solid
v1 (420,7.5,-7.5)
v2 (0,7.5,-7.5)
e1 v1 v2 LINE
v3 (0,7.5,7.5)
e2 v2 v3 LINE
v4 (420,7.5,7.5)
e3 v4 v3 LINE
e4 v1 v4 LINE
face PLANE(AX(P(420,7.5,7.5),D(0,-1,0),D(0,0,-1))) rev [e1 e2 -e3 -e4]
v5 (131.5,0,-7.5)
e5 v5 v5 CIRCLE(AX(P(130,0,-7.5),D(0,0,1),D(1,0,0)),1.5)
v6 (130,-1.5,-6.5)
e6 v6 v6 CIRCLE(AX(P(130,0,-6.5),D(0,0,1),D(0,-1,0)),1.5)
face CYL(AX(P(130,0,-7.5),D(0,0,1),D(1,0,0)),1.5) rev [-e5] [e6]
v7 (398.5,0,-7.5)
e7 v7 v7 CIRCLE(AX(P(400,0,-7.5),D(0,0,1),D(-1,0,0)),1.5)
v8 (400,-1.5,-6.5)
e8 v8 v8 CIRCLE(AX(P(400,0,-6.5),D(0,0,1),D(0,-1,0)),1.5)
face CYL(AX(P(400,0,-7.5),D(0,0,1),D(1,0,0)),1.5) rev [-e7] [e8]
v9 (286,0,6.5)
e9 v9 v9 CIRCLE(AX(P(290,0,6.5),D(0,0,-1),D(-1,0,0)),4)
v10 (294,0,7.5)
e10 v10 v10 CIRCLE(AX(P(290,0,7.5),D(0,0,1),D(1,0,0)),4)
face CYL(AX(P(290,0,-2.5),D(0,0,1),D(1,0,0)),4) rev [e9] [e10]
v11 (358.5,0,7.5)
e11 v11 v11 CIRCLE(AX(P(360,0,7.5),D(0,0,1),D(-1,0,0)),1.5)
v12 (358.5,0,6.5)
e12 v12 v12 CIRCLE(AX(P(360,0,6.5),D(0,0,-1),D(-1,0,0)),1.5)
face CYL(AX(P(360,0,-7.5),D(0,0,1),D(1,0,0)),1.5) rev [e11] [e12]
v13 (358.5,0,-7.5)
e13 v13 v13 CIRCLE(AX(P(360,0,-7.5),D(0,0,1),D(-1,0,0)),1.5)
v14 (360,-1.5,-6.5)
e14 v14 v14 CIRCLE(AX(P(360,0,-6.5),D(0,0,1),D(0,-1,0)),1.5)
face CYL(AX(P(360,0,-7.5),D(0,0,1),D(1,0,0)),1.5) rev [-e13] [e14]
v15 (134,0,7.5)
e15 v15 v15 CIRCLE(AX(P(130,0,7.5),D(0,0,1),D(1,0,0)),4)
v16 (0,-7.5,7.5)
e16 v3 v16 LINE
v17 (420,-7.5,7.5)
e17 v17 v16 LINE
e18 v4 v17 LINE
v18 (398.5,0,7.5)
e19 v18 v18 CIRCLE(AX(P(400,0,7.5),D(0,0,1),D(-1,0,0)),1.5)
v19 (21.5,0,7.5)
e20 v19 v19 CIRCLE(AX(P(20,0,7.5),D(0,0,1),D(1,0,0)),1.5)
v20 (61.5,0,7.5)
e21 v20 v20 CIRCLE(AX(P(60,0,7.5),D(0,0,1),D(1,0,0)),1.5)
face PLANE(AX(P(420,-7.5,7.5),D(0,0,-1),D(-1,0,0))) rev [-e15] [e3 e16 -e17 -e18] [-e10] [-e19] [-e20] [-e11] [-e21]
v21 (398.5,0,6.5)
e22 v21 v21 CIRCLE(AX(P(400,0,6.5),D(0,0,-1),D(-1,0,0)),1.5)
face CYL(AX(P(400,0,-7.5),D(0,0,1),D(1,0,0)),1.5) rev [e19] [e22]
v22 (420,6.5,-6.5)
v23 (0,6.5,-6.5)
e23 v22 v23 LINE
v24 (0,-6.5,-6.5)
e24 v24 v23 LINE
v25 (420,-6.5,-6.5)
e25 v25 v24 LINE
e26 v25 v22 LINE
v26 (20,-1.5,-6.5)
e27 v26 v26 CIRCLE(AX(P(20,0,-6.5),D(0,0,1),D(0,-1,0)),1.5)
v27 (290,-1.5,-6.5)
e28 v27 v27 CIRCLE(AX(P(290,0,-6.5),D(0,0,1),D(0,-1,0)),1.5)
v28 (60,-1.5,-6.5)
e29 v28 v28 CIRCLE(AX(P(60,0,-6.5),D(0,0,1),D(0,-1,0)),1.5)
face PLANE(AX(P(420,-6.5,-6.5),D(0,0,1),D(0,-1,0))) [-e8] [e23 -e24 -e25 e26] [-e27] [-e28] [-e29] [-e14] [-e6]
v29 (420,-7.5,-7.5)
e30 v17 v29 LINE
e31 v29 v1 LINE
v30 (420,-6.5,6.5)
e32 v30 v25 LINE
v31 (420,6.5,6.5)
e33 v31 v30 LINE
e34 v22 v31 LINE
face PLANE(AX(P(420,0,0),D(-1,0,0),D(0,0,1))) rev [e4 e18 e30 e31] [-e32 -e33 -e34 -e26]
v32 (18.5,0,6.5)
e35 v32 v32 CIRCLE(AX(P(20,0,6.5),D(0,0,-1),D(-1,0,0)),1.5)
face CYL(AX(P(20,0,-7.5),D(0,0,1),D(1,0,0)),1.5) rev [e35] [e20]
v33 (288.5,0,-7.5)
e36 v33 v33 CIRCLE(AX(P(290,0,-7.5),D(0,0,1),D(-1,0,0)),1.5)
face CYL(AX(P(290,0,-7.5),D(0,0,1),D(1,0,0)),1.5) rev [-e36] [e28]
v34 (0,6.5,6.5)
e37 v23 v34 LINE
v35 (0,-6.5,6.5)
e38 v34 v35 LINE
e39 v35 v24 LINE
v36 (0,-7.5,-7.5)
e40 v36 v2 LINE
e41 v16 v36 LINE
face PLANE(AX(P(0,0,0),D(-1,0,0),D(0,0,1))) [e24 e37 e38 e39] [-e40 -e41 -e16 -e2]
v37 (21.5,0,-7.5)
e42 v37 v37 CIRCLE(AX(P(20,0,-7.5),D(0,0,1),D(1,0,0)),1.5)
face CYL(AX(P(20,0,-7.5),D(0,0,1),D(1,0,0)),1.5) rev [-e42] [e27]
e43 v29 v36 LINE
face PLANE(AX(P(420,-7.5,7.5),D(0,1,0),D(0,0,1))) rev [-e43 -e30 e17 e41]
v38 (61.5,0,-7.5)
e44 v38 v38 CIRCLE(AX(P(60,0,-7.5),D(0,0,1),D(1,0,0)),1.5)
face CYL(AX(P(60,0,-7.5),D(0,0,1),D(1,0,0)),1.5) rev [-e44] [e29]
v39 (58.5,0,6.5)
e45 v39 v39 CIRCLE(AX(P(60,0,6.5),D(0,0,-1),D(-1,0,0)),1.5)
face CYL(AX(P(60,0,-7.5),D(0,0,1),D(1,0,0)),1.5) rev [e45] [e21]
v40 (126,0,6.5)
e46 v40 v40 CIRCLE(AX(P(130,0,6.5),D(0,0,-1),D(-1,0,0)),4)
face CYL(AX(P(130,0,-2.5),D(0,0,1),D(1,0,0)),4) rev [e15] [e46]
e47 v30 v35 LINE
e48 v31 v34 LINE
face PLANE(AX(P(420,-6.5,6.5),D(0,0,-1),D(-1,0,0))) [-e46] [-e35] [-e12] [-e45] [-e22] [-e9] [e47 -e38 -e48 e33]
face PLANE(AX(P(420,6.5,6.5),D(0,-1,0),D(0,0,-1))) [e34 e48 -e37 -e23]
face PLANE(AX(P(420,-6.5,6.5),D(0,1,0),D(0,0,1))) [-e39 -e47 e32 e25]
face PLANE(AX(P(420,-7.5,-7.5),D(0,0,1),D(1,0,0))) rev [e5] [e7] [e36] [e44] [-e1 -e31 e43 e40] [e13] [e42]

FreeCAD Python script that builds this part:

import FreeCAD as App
import Part
import Sketcher

doc = App.newDocument("Part")
body = doc.addObject("PartDesign::Body", "Body")

# Sketch on YZ plane
sketch1 = doc.addObject("Sketcher::SketchObject", "Sketch")
body.addObject(sketch1)
sketch1.AttachmentSupport = (doc.YZ_Plane, [""])
sketch1.MapMode = "FlatFace"
sketch1.addGeometry(Part.LineSegment(App.Vector(8, 8, 0), App.Vector(-8, 8, 0)), False)
sketch1.addGeometry(Part.LineSegment(App.Vector(-8, 8, 0), App.Vector(-8, -8, 0)), False)
sketch1.addGeometry(Part.LineSegment(App.Vector(-8, -8, 0), App.Vector(8, -8, 0)), False)
sketch1.addGeometry(Part.LineSegment(App.Vector(8, -8, 0), App.Vector(8, 8, 0)), False)
sketch1.addGeometry(Part.LineSegment(App.Vector(-6, -6, 0), App.Vector(-6, 6, 0)), False)
sketch1.addGeometry(Part.LineSegment(App.Vector(-6, 6, 0), App.Vector(6, 6, 0)), False)
sketch1.addGeometry(Part.LineSegment(App.Vector(6, 6, 0), App.Vector(6, -6, 0)), False)
sketch1.addGeometry(Part.LineSegment(App.Vector(6, -6, 0), App.Vector(-6, -6, 0)), False)
sketch1.addConstraint(Sketcher.Constraint("Coincident", 0, 2, 1, 1))
sketch1.addConstraint(Sketcher.Constraint("Coincident", 1, 2, 2, 1))
sketch1.addConstraint(Sketcher.Constraint("Coincident", 2, 2, 3, 1))
sketch1.addConstraint(Sketcher.Constraint("Coincident", 3, 2, 0, 1))
sketch1.addConstraint(Sketcher.Constraint("Coincident", 4, 2, 5, 1))
sketch1.addConstraint(Sketcher.Constraint("Coincident", 5, 2, 6, 1))
sketch1.addConstraint(Sketcher.Constraint("Coincident", 6, 2, 7, 1))
sketch1.addConstraint(Sketcher.Constraint("Coincident", 7, 2, 4, 1))
sketch1.addConstraint(Sketcher.Constraint("Horizontal", 0))
sketch1.addConstraint(Sketcher.Constraint("Vertical", 1))
sketch1.addConstraint(Sketcher.Constraint("Horizontal", 2))
sketch1.addConstraint(Sketcher.Constraint("Vertical", 3))
sketch1.addConstraint(Sketcher.Constraint("Vertical", 4))
sketch1.addConstraint(Sketcher.Constraint("Horizontal", 5))
sketch1.addConstraint(Sketcher.Constraint("Vertical", 6))
sketch1.addConstraint(Sketcher.Constraint("Horizontal", 7))
sketch1.addConstraint(Sketcher.Constraint("Symmetric", 0, 2, 2, 2, -1, 1))
sketch1.addConstraint(Sketcher.Constraint("Symmetric", 4, 2, 6, 2, -1, 1))
sketch1.addConstraint(Sketcher.Constraint("Equal", 2, 1))
sketch1.addConstraint(Sketcher.Constraint("Equal", 7, 4))
sketch1.addConstraint(Sketcher.Constraint("DistanceX", 0, 2, 0, 1, 15.0))
sketch1.addConstraint(Sketcher.Constraint("DistanceX", 5, 1, 5, 2, 13.0))
pad1 = doc.addObject("PartDesign::Pad", "Pad")
body.addObject(pad1)
pad1.Profile = sketch1
pad1.Length = 420

# Sketch on XY plane
sketch2 = doc.addObject("Sketcher::SketchObject", "Sketch001")
body.addObject(sketch2)
sketch2.AttachmentSupport = (doc.XY_Plane, [""])
sketch2.MapMode = "FlatFace"
sketch2.AttachmentOffset = App.Placement(App.Vector(0, 0, 7.5), App.Rotation())
sketch2.addGeometry(Part.Circle(App.Vector(20, 0, 0), App.Vector(0, 0, 1), 1.5), False)
sketch2.addGeometry(Part.Circle(App.Vector(60, 0, 0), App.Vector(0, 0, 1), 1.5), False)
sketch2.addGeometry(Part.Circle(App.Vector(130, 0, 0), App.Vector(0, 0, 1), 1.5), False)
sketch2.addGeometry(Part.Circle(App.Vector(290, 0, 0), App.Vector(0, 0, 1), 1.5), False)
sketch2.addGeometry(Part.Circle(App.Vector(360, 0, 0), App.Vector(0, 0, 1), 1.5), False)
sketch2.addGeometry(Part.Circle(App.Vector(400, 0, 0), App.Vector(0, 0, 1), 1.5), False)
sketch2.addConstraint(Sketcher.Constraint("Equal", 0, 1))
sketch2.addConstraint(Sketcher.Constraint("Equal", 1, 2))
sketch2.addConstraint(Sketcher.Constraint("Equal", 2, 3))
sketch2.addConstraint(Sketcher.Constraint("Equal", 3, 4))
sketch2.addConstraint(Sketcher.Constraint("Equal", 4, 5))
sketch2.addConstraint(Sketcher.Constraint("PointOnObject", 0, 3, -1))
sketch2.addConstraint(Sketcher.Constraint("PointOnObject", 1, 3, -1))
sketch2.addConstraint(Sketcher.Constraint("PointOnObject", 2, 3, -1))
sketch2.addConstraint(Sketcher.Constraint("PointOnObject", 3, 3, -1))
sketch2.addConstraint(Sketcher.Constraint("PointOnObject", 4, 3, -1))
sketch2.addConstraint(Sketcher.Constraint("PointOnObject", 5, 3, -1))
sketch2.addConstraint(Sketcher.Constraint("Diameter", 0, 3.0))
sketch2.addConstraint(Sketcher.Constraint("DistanceX", -1, 1, 0, 3, 20.0))
sketch2.addConstraint(Sketcher.Constraint("DistanceX", -1, 1, 1, 3, 60.0))
sketch2.addConstraint(Sketcher.Constraint("DistanceX", -1, 1, 2, 3, 130.0))
sketch2.addConstraint(Sketcher.Constraint("DistanceX", -1, 1, 3, 3, 290.0))
sketch2.addConstraint(Sketcher.Constraint("DistanceX", -1, 1, 4, 3, 360.0))
sketch2.addConstraint(Sketcher.Constraint("DistanceX", -1, 1, 5, 3, 400.0))
pocket1 = doc.addObject("PartDesign::Pocket", "Pocket")
body.addObject(pocket1)
pocket1.Profile = sketch2
pocket1.Type = "ThroughAll"

# Sketch on XY plane
sketch3 = doc.addObject("Sketcher::SketchObject", "Sketch002")
body.addObject(sketch3)
sketch3.AttachmentSupport = (doc.XY_Plane, [""])
sketch3.MapMode = "FlatFace"
sketch3.AttachmentOffset = App.Placement(App.Vector(0, 0, 7.5), App.Rotation())
sketch3.addGeometry(Part.Circle(App.Vector(130, 0, 0), App.Vector(0, 0, 1), 4), False)
sketch3.addGeometry(Part.Circle(App.Vector(290, 0, 0), App.Vector(0, 0, 1), 4), False)
sketch3.addConstraint(Sketcher.Constraint("Equal", 0, 1))
sketch3.addConstraint(Sketcher.Constraint("PointOnObject", 0, 3, -1))
sketch3.addConstraint(Sketcher.Constraint("PointOnObject", 1, 3, -1))
sketch3.addConstraint(Sketcher.Constraint("Diameter", 0, 8.0))
sketch3.addConstraint(Sketcher.Constraint("DistanceX", -1, 1, 0, 3, 130.0))
sketch3.addConstraint(Sketcher.Constraint("DistanceX", -1, 1, 1, 3, 290.0))
pocket2 = doc.addObject("PartDesign::Pocket", "Pocket001")
body.addObject(pocket2)
pocket2.Profile = sketch3
pocket2.Length = 10

doc.recompute()
